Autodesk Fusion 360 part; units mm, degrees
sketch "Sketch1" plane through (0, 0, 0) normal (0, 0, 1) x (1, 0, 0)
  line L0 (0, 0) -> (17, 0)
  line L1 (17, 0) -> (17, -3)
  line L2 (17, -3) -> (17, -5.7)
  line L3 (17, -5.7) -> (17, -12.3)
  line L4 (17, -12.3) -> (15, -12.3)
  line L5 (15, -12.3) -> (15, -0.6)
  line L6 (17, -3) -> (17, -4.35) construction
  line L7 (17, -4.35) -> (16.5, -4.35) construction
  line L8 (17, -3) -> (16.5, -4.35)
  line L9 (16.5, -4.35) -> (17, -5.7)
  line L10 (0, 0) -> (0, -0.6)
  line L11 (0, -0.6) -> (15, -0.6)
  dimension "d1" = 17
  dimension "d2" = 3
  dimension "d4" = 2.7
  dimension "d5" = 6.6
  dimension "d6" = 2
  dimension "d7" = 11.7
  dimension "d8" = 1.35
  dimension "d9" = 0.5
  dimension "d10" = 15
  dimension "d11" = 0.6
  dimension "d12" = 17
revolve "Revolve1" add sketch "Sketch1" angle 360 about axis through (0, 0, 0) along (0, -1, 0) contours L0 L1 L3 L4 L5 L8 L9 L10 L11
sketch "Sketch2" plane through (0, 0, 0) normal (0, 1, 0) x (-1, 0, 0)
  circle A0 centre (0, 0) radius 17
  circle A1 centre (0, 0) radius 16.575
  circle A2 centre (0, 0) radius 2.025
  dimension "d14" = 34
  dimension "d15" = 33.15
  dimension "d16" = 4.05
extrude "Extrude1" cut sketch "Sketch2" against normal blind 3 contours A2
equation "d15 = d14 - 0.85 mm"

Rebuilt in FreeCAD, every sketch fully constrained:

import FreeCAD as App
import Part
import Sketcher
from FreeCAD import Vector


def add_polygon(sketch, points):
    """Adds a closed chain of lines whose ends are joined by coincident constraints."""
    first, n = sketch.GeometryCount, len(points)
    for a, b in zip(points, points[1:] + points[:1]):
        sketch.addGeometry(Part.LineSegment(App.Vector(*a, 0), App.Vector(*b, 0)), False)
    for i in range(n):
        sketch.addConstraint(Sketcher.Constraint("Coincident", first + i, 2, first + (i + 1) % n, 1))

doc = App.newDocument("Part")
body = doc.addObject("PartDesign::Body", "Body")

sketch1 = doc.addObject("Sketcher::SketchObject", "Sketch")
body.addObject(sketch1)
sketch1.AttachmentSupport = (doc.XY_Plane, [""])
sketch1.MapMode = "FlatFace"
add_polygon(sketch1, [(17, 0), (0, 0), (0, -0.6), (15, -0.6), (15, -12.3), (17, -12.3), (17, -5.7), (16.5, -4.35), (17, -3)])
sketch1.addConstraint([
    Sketcher.Constraint("Horizontal", 0),
    Sketcher.Constraint("Vertical", 1),
    Sketcher.Constraint("Horizontal", 2),
    Sketcher.Constraint("Vertical", 3),
    Sketcher.Constraint("Horizontal", 4),
    Sketcher.Constraint("Vertical", 5),
    Sketcher.Constraint("Vertical", 8),
    Sketcher.Constraint("Coincident", 0, 2, -1, 1),
    Sketcher.Constraint("Vertical", 5, 2, 7, 2),
    Sketcher.Constraint("Equal", 6, 7),
    Sketcher.Constraint("DistanceX", 0, 2, 0, 1, 17.0),
    Sketcher.Constraint("DistanceX", 2, 1, 2, 2, 15.0),
    Sketcher.Constraint("DistanceY", 8, 1, 8, 2, 3.0),
    Sketcher.Constraint("DistanceY", 1, 2, 1, 1, 0.6),
    Sketcher.Constraint("DistanceY", 3, 2, 3, 1, 11.7),
    Sketcher.Constraint("DistanceY", 5, 1, 5, 2, 6.6),
    Sketcher.Constraint("DistanceX", 6, 2, 5, 2, 0.5),
])
revolution = doc.addObject("PartDesign::Revolution", "Revolution")
body.addObject(revolution)
revolution.Profile = sketch1
revolution.ReferenceAxis = (sketch1, ["V_Axis"])
revolution.Angle = 360

sketch2 = doc.addObject("Sketcher::SketchObject", "Sketch001")
body.addObject(sketch2)
sketch2.AttachmentSupport = (doc.XZ_Plane, [""])
sketch2.MapMode = "FlatFace"
sketch2.addGeometry(Part.Circle(Vector(0, 0, 0), Vector(0, 0, 1), 2.025), False)
sketch2.addConstraint([
    Sketcher.Constraint("Coincident", 0, 3, -1, 1),
    Sketcher.Constraint("Diameter", 0, 4.05),
])
pocket1 = doc.addObject("PartDesign::Pocket", "Pocket")
body.addObject(pocket1)
pocket1.Profile = sketch2
pocket1.Length = 3
pocket1.Reversed = True

doc.recompute()
